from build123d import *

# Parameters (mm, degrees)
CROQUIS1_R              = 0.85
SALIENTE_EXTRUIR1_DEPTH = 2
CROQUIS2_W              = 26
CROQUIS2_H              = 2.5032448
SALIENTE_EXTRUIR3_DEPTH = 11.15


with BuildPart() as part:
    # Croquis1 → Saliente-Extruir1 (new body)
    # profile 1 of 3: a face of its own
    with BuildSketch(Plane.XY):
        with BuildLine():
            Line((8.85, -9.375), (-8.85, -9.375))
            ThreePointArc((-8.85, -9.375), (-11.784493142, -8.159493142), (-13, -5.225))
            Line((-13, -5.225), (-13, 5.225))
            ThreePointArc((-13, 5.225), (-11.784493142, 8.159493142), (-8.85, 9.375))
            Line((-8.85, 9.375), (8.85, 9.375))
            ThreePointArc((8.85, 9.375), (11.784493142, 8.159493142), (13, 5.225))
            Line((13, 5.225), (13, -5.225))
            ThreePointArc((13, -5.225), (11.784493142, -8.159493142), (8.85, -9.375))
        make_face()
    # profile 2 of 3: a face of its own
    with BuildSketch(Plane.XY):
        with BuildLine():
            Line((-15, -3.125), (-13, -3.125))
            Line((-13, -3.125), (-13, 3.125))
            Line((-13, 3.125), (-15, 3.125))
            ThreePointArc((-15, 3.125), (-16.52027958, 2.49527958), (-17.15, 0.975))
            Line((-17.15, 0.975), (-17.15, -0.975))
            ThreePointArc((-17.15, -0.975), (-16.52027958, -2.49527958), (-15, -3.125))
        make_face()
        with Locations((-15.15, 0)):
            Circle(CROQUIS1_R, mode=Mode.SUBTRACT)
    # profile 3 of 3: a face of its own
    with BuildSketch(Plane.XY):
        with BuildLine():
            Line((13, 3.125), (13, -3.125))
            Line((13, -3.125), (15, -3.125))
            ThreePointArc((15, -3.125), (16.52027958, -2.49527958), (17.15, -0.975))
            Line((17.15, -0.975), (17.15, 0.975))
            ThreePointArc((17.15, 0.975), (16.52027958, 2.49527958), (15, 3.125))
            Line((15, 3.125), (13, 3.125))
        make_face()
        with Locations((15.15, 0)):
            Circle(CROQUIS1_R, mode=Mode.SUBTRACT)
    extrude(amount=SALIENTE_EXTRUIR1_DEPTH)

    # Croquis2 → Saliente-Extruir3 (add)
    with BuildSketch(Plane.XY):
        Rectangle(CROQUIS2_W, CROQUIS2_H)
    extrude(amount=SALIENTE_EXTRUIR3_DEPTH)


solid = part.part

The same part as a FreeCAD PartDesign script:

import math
import FreeCAD as App
import Part
import Sketcher

V = App.Vector
Q = App.Units.Quantity


def add_polygon(sketch, points):
    """Adds a closed chain of lines whose ends are joined by coincident constraints."""
    first, n = sketch.GeometryCount, len(points)
    for a, b in zip(points, points[1:] + points[:1]):
        sketch.addGeometry(Part.LineSegment(App.Vector(*a, 0), App.Vector(*b, 0)), False)
    for i in range(n):
        sketch.addConstraint(Sketcher.Constraint("Coincident", first + i, 2, first + (i + 1) % n, 1))

doc = App.newDocument("Part")
body = doc.addObject("PartDesign::Body", "Body")

sketch1 = body.newObject("Sketcher::SketchObject", "Sketch")
sketch1.AttachmentSupport = (doc.getObject("XY_Plane"), [""])
sketch1.MapMode = "FlatFace"
sketch1.addGeometry([
    Part.LineSegment(V(-8.8, -9.4, 0), V(8.8, -9.4, 0)),
    Part.ArcOfCircle(Part.Circle(V(8.8, -5.2, 0), V(0, 0, 1), 4.2), math.radians(-90), math.radians(0)),
    Part.LineSegment(V(13, -5.2, 0), V(13, -3.1, 0)),
    Part.LineSegment(V(13, -3.1, 0), V(15, -3.1, 0)),
    Part.ArcOfCircle(Part.Circle(V(15, -1, 0), V(0, 0, 1), 2.1), math.radians(-90), math.radians(0)),
    Part.LineSegment(V(17.1, -1, 0), V(17.1, 1, 0)),
    Part.ArcOfCircle(Part.Circle(V(15, 1, 0), V(0, 0, 1), 2.1), math.radians(0), math.radians(90)),
    Part.LineSegment(V(15, 3.1, 0), V(13, 3.1, 0)),
    Part.LineSegment(V(13, 3.1, 0), V(13, 5.2, 0)),
    Part.ArcOfCircle(Part.Circle(V(8.8, 5.2, 0), V(0, 0, 1), 4.2), math.radians(0), math.radians(90)),
    Part.LineSegment(V(8.8, 9.4, 0), V(-8.8, 9.4, 0)),
    Part.ArcOfCircle(Part.Circle(V(-8.8, 5.2, 0), V(0, 0, 1), 4.2), math.radians(90), math.radians(180)),
    Part.LineSegment(V(-13, 5.2, 0), V(-13, 3.1, 0)),
    Part.LineSegment(V(-13, 3.1, 0), V(-15, 3.1, 0)),
    Part.ArcOfCircle(Part.Circle(V(-15, 1, 0), V(0, 0, 1), 2.1), math.radians(90), math.radians(180)),
    Part.LineSegment(V(-17.1, 1, 0), V(-17.1, -1, 0)),
    Part.ArcOfCircle(Part.Circle(V(-15, -1, 0), V(0, 0, 1), 2.1), math.radians(180), math.radians(270)),
    Part.LineSegment(V(-15, -3.1, 0), V(-13, -3.1, 0)),
    Part.LineSegment(V(-13, -3.1, 0), V(-13, -5.2, 0)),
    Part.ArcOfCircle(Part.Circle(V(-8.8, -5.2, 0), V(0, 0, 1), 4.2), math.radians(180), math.radians(270)),
    Part.Circle(V(-15.2, 0, 0), V(0, 0, 1), 0.8),
    Part.Circle(V(15.2, 0, 0), V(0, 0, 1), 0.8),
], False)
sketch1.addConstraint([
    Sketcher.Constraint("Tangent", 0, 2, 1, 1),
    Sketcher.Constraint("Tangent", 1, 2, 2, 1),
    Sketcher.Constraint("Coincident", 2, 2, 3, 1),
    Sketcher.Constraint("Tangent", 3, 2, 4, 1),
    Sketcher.Constraint("Tangent", 4, 2, 5, 1),
    Sketcher.Constraint("Tangent", 5, 2, 6, 1),
    Sketcher.Constraint("Tangent", 6, 2, 7, 1),
    Sketcher.Constraint("Coincident", 7, 2, 8, 1),
    Sketcher.Constraint("Tangent", 8, 2, 9, 1),
    Sketcher.Constraint("Tangent", 9, 2, 10, 1),
    Sketcher.Constraint("Tangent", 10, 2, 11, 1),
    Sketcher.Constraint("Tangent", 11, 2, 12, 1),
    Sketcher.Constraint("Coincident", 12, 2, 13, 1),
    Sketcher.Constraint("Tangent", 13, 2, 14, 1),
    Sketcher.Constraint("Tangent", 14, 2, 15, 1),
    Sketcher.Constraint("Tangent", 15, 2, 16, 1),
    Sketcher.Constraint("Tangent", 16, 2, 17, 1),
    Sketcher.Constraint("Coincident", 17, 2, 18, 1),
    Sketcher.Constraint("Tangent", 18, 2, 19, 1),
    Sketcher.Constraint("Tangent", 19, 2, 0, 1),
    Sketcher.Constraint("Horizontal", 0),
    Sketcher.Constraint("Vertical", 2),
    Sketcher.Constraint("Horizontal", 3),
    Sketcher.Constraint("Vertical", 5),
    Sketcher.Constraint("Horizontal", 7),
    Sketcher.Constraint("Vertical", 8),
    Sketcher.Constraint("Horizontal", 10),
    Sketcher.Constraint("Vertical", 12),
    Sketcher.Constraint("Horizontal", 13),
    Sketcher.Constraint("Vertical", 15),
    Sketcher.Constraint("Horizontal", 17),
    Sketcher.Constraint("Vertical", 18),
    Sketcher.Constraint("Equal", 4, 6),
    Sketcher.Constraint("Equal", 1, 9),
    Sketcher.Constraint("Equal", 9, 11),
    Sketcher.Constraint("Equal", 6, 14),
    Sketcher.Constraint("Equal", 14, 16),
    Sketcher.Constraint("Equal", 11, 19),
    Sketcher.Constraint("Equal", 20, 21),
    Sketcher.Constraint("Symmetric", 1, 3, 11, 3, -1, 1),
    Sketcher.Constraint("Symmetric", 4, 3, 14, 3, -1, 1),
    Sketcher.Constraint("Symmetric", 20, 3, 21, 3, -1, 1),
    Sketcher.Constraint("Symmetric", 7, 2, 17, 2, -1, 1),
    Sketcher.Constraint("Symmetric", 7, 2, 12, 2, -2),
    Sketcher.Constraint("PointOnObject", 20, 3, -1),
    Sketcher.Constraint("Diameter", 20, Q("1.7 mm")),
    Sketcher.Constraint("DistanceX", 3, 1, 3, 2, Q("2 mm")),
    Sketcher.Constraint("Radius", 1, Q("4.15 mm")),
    Sketcher.Constraint("Radius", 4, Q("2.15 mm")),
    Sketcher.Constraint("DistanceX", 0, 1, 0, 2, Q("17.7 mm")),
    Sketcher.Constraint("DistanceY", 2, 1, 2, 2, Q("2.1 mm")),
    Sketcher.Constraint("DistanceX", 20, 3, 1, 3, Q("24 mm")),
    Sketcher.Constraint("DistanceY", 5, 1, 5, 2, Q("1.95 mm")),
])
pad1 = body.newObject("PartDesign::Pad", "Pad")
pad1.Profile = sketch1
pad1.Length = 2

sketch2 = body.newObject("Sketcher::SketchObject", "Sketch001")
sketch2.AttachmentSupport = (doc.getObject("XY_Plane"), [""])
sketch2.MapMode = "FlatFace"
add_polygon(sketch2, [(-13, 1.3), (-13, -1.3), (13, -1.3), (13, 1.3)])
sketch2.addConstraint([
    Sketcher.Constraint("Vertical", 0),
    Sketcher.Constraint("Horizontal", 1),
    Sketcher.Constraint("Vertical", 2),
    Sketcher.Constraint("Horizontal", 3),
    Sketcher.Constraint("Symmetric", 0, 2, 2, 2, -1, 1),
    Sketcher.Constraint("DistanceX", 1, 1, 1, 2, Q("26 mm")),
    Sketcher.Constraint("DistanceY", 0, 2, 0, 1, Q("2.503245 mm")),
])
pad2 = body.newObject("PartDesign::Pad", "Pad001")
pad2.Profile = sketch2
pad2.Length = 11.15

doc.recompute()
